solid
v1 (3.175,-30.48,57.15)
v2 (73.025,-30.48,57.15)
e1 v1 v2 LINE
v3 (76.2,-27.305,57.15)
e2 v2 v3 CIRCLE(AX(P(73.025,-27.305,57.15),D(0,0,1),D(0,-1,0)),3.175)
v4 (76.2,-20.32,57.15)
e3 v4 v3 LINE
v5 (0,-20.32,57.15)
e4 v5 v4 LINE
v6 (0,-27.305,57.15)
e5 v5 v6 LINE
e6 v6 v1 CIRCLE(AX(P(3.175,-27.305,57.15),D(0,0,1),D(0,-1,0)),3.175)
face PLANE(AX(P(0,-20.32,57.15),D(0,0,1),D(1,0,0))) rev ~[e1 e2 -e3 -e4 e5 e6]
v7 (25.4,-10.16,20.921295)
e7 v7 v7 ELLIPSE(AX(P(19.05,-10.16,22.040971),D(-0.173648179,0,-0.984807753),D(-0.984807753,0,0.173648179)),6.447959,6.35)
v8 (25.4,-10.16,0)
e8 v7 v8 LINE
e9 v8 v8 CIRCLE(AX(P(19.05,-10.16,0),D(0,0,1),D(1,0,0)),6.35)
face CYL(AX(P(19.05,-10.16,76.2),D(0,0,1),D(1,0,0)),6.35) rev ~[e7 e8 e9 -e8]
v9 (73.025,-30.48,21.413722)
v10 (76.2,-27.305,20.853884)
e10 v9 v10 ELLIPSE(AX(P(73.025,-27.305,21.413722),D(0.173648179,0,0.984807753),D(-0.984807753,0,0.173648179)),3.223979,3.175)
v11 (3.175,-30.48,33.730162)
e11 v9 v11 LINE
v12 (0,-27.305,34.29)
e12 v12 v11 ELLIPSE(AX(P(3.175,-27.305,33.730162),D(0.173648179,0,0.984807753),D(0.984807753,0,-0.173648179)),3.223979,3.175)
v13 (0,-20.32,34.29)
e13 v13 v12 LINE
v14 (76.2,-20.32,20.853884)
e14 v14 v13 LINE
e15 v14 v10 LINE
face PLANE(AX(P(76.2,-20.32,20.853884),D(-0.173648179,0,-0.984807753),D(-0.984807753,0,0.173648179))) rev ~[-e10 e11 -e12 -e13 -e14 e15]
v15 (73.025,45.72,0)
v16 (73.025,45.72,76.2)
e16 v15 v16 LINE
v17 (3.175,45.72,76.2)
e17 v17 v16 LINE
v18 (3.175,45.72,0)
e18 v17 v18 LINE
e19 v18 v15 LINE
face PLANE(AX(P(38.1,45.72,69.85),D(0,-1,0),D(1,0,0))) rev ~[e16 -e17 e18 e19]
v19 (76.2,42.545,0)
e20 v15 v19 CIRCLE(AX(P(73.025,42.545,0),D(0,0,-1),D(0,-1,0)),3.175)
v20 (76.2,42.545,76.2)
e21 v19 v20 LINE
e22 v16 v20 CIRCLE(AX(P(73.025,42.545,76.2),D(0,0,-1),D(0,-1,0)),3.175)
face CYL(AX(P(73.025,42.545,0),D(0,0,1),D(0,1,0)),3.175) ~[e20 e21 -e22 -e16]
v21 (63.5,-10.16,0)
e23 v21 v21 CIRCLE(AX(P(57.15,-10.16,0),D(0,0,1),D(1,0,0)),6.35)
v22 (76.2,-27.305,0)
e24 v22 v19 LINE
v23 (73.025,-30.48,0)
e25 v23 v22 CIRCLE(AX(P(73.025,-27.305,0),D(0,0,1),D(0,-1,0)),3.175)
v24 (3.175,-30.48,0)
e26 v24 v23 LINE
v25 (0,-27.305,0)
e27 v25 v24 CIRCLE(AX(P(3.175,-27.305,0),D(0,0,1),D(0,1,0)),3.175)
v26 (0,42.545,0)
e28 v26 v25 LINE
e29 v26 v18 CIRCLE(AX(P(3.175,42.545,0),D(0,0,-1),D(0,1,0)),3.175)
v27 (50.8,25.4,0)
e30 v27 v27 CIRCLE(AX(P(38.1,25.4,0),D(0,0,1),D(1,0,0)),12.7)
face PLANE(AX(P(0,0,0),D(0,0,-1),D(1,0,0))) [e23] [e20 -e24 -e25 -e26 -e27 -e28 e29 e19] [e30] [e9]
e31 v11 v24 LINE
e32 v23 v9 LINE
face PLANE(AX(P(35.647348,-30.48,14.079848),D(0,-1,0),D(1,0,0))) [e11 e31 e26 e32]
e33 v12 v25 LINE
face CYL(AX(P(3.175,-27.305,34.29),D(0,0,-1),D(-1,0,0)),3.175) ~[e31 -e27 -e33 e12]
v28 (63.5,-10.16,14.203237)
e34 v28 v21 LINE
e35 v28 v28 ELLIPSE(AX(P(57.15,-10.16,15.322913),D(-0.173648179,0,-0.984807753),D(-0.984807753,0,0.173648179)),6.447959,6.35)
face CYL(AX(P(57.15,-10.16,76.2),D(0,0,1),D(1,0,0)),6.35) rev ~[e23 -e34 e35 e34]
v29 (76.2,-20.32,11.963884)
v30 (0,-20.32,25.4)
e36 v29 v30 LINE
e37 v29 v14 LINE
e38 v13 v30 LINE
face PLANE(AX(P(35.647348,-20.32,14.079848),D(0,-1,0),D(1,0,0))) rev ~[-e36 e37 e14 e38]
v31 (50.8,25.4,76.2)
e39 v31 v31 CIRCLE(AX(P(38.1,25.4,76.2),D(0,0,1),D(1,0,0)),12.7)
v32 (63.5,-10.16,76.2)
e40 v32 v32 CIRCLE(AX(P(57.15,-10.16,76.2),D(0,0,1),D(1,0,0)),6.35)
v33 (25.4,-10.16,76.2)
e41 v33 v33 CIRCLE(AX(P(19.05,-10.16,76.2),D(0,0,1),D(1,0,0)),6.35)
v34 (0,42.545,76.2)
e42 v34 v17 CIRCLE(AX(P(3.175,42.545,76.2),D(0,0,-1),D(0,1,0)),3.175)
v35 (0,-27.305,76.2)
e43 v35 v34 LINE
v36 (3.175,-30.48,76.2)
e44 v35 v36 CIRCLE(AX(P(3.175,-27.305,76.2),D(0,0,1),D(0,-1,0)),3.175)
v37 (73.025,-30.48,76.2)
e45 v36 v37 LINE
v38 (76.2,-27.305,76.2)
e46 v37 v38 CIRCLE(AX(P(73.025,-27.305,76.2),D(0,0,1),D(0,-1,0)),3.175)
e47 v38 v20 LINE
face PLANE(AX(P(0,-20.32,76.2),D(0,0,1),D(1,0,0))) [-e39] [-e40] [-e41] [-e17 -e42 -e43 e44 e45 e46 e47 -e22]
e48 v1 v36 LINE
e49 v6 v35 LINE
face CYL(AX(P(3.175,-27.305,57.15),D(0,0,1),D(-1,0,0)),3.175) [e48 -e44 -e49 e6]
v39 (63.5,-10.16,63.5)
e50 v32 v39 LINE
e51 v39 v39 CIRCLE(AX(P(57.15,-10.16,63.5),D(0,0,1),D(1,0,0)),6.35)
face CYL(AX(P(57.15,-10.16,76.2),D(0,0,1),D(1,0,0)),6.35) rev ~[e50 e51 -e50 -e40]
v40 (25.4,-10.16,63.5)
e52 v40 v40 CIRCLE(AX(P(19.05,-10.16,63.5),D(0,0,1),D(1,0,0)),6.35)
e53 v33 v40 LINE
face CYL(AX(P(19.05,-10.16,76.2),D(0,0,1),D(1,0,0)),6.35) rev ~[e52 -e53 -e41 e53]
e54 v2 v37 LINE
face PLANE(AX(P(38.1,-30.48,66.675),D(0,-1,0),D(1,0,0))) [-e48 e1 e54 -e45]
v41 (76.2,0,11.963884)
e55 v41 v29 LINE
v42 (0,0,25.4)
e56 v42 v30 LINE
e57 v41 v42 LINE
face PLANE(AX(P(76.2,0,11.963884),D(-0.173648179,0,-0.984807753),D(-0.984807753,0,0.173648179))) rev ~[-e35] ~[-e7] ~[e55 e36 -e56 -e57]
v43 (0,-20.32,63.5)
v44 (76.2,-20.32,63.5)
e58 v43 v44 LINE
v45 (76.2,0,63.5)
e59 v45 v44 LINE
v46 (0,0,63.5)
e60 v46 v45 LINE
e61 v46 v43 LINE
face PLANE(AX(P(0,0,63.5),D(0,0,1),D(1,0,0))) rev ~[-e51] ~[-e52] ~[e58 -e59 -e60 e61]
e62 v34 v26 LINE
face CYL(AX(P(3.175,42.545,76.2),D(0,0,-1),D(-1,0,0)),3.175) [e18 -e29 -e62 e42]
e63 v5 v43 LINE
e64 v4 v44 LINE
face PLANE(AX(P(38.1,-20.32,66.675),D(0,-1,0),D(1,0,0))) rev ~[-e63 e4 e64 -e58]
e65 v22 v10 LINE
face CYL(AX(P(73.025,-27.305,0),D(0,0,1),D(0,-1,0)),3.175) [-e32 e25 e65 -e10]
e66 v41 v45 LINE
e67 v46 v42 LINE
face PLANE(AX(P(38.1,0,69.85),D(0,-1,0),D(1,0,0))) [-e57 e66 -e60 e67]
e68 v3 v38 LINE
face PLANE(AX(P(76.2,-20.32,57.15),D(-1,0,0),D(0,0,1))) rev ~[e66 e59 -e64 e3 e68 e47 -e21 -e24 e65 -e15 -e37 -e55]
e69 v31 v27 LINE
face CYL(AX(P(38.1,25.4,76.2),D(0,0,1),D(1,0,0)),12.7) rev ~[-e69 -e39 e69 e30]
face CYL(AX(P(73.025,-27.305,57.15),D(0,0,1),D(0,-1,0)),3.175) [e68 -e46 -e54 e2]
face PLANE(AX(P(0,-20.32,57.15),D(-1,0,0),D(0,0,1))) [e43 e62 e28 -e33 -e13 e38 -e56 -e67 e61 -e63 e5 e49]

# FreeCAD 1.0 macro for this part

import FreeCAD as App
import Part
import Sketcher
Q = App.Units.Quantity


def edges_at(feature, points):
    """Names of the edges that pass closest to the given points."""
    edges = feature.Shape.Edges
    near = lambda p: min(range(len(edges)), key=lambda i: edges[i].distToShape(Part.Vertex(*p))[0])
    return sorted({f"Edge{near(p) + 1}" for p in points})


def add_polygon(sketch, points):
    """Adds a closed chain of lines whose ends are joined by coincident constraints."""
    first, n = sketch.GeometryCount, len(points)
    for a, b in zip(points, points[1:] + points[:1]):
        sketch.addGeometry(Part.LineSegment(App.Vector(*a, 0), App.Vector(*b, 0)), False)
    for i in range(n):
        sketch.addConstraint(Sketcher.Constraint("Coincident", first + i, 2, first + (i + 1) % n, 1))

doc = App.newDocument("Part")
body = doc.addObject("PartDesign::Body", "Body")

# Sketch on XZ plane
sketch1 = doc.addObject("Sketcher::SketchObject", "Sketch")
body.addObject(sketch1)
sketch1.AttachmentSupport = (doc.XZ_Plane, [""])
sketch1.MapMode = "FlatFace"
add_polygon(sketch1, [(0, 76), (0, 0), (76, 0), (76, 76)])  # lines 0-3
sketch1.addConstraint(Sketcher.Constraint("Vertical", 0))
sketch1.addConstraint(Sketcher.Constraint("Horizontal", 1))
sketch1.addConstraint(Sketcher.Constraint("Vertical", 2))
sketch1.addConstraint(Sketcher.Constraint("Horizontal", 3))
sketch1.addConstraint(Sketcher.Constraint("Coincident", 0, 2, -1, 1))
sketch1.addConstraint(Sketcher.Constraint("Equal", 3, 0))
sketch1.addConstraint(Sketcher.Constraint("DistanceX", 1, 1, 1, 2, Q("3 in")))
pad1 = doc.addObject("PartDesign::Pad", "Pad")
body.addObject(pad1)
pad1.Profile = sketch1
pad1.Length = Q("1.8 in")
pad1.Reversed = True

# Sketch on XZ plane
sketch2 = doc.addObject("Sketcher::SketchObject", "Sketch001")
body.addObject(sketch2)
sketch2.AttachmentSupport = (doc.XZ_Plane, [""])
sketch2.MapMode = "FlatFace"
add_polygon(sketch2, [(0, 76), (0, 64), (76, 64), (76, 76)])  # lines 0-3
add_polygon(sketch2, [(0, 25), (0, 0), (76, 0), (76, 12)])  # lines 4-7
sketch2.addConstraint(Sketcher.Constraint("Vertical", 0))
sketch2.addConstraint(Sketcher.Constraint("Horizontal", 1))
sketch2.addConstraint(Sketcher.Constraint("Vertical", 2))
sketch2.addConstraint(Sketcher.Constraint("Horizontal", 3))
sketch2.addConstraint(Sketcher.Constraint("Vertical", 4))
sketch2.addConstraint(Sketcher.Constraint("Horizontal", 5))
sketch2.addConstraint(Sketcher.Constraint("Vertical", 6))
sketch2.addConstraint(Sketcher.Constraint("Coincident", 4, 2, -1, 1))
sketch2.addConstraint(Sketcher.Constraint("PointOnObject", 0, 2, -2))
sketch2.addConstraint(Sketcher.Constraint("Vertical", 2, 2, 5, 2))
sketch2.addConstraint(Sketcher.Constraint("DistanceX", 1, 1, 1, 2, Q("3 in")))
sketch2.addConstraint(Sketcher.Constraint("DistanceY", 4, 2, 4, 1, Q("1 in")))
sketch2.addConstraint(Sketcher.Constraint("DistanceY", 0, 2, 0, 1, Q("0.5 in")))
sketch2.addConstraint(Sketcher.Constraint("DistanceY", -1, 1, 2, 2, Q("3 in")))
sketch2.addConstraint(Sketcher.Constraint("Angle", 7, Q("170 deg")))
pad2 = doc.addObject("PartDesign::Pad", "Pad001")
body.addObject(pad2)
pad2.Profile = sketch2
pad2.Length = Q("0.8 in")

# Sketch on XZ plane
sketch3 = doc.addObject("Sketcher::SketchObject", "Sketch002")
body.addObject(sketch3)
sketch3.AttachmentSupport = (doc.XZ_Plane, [""])
sketch3.MapMode = "FlatFace"
sketch3.AttachmentOffset = App.Placement(App.Vector(0, 0, 0.8 * 25.4), App.Rotation())
add_polygon(sketch3, [(0, 76), (0, 57), (76, 57), (76, 76)])  # lines 0-3
add_polygon(sketch3, [(76, 21), (0, 34), (0, 0), (76, 0)])  # lines 4-7
sketch3.addConstraint(Sketcher.Constraint("Vertical", 0))
sketch3.addConstraint(Sketcher.Constraint("Horizontal", 1))
sketch3.addConstraint(Sketcher.Constraint("Vertical", 2))
sketch3.addConstraint(Sketcher.Constraint("Horizontal", 3))
sketch3.addConstraint(Sketcher.Constraint("Vertical", 5))
sketch3.addConstraint(Sketcher.Constraint("Horizontal", 6))
sketch3.addConstraint(Sketcher.Constraint("Vertical", 7))
sketch3.addConstraint(Sketcher.Constraint("Coincident", 5, 2, -1, 1))
sketch3.addConstraint(Sketcher.Constraint("PointOnObject", 0, 2, -2))
sketch3.addConstraint(Sketcher.Constraint("Vertical", 2, 2, 6, 2))
sketch3.addConstraint(Sketcher.Constraint("DistanceX", 1, 1, 1, 2, Q("3 in")))
sketch3.addConstraint(Sketcher.Constraint("DistanceY", -1, 1, 2, 2, Q("3 in")))
sketch3.addConstraint(Sketcher.Constraint("Angle", 4, Q("170 deg")))
sketch3.addConstraint(Sketcher.Constraint("DistanceY", 0, 2, 0, 1, Q("0.75 in")))
sketch3.addConstraint(Sketcher.Constraint("DistanceY", 5, 2, 5, 1, Q("1.35 in")))
pad3 = doc.addObject("PartDesign::Pad", "Pad002")
body.addObject(pad3)
pad3.Profile = sketch3
pad3.Length = Q("0.4 in")

# Sketch on XY plane
sketch4 = doc.addObject("Sketcher::SketchObject", "Sketch003")
body.addObject(sketch4)
sketch4.AttachmentSupport = (doc.XY_Plane, [""])
sketch4.MapMode = "FlatFace"
sketch4.AttachmentOffset = App.Placement(App.Vector(0, 0, 3 * 25.4), App.Rotation())
sketch4.addGeometry(Part.Circle(App.Vector(19, -10, 0), App.Vector(0, 0, 1), 6), False)
sketch4.addGeometry(Part.Circle(App.Vector(57, -10, 0), App.Vector(0, 0, 1), 6), False)
sketch4.addGeometry(Part.Circle(App.Vector(38, 25, 0), App.Vector(0, 0, 1), 13), False)
sketch4.addConstraint(Sketcher.Constraint("Equal", 0, 1))
sketch4.addConstraint(Sketcher.Constraint("Horizontal", 0, 3, 1, 3))
sketch4.addConstraint(Sketcher.Constraint("Diameter", 2, Q("1 in")))
sketch4.addConstraint(Sketcher.Constraint("Diameter", 0, Q("0.5 in")))
sketch4.addConstraint(Sketcher.Constraint("DistanceY", -1, 1, 2, 3, Q("1 in")))
sketch4.addConstraint(Sketcher.Constraint("DistanceY", 0, 3, -1, 1, Q("0.4 in")))
sketch4.addConstraint(Sketcher.Constraint("DistanceX", -1, 1, 2, 3, Q("1.5 in")))
sketch4.addConstraint(Sketcher.Constraint("DistanceX", 0, 3, 1, 3, Q("1.5 in")))
sketch4.addConstraint(Sketcher.Constraint("DistanceX", -1, 1, 0, 3, Q("0.75 in")))
pocket1 = doc.addObject("PartDesign::Pocket", "Pocket")
body.addObject(pocket1)
pocket1.Profile = sketch4
pocket1.Type = "ThroughAll"
doc.recompute()

fillet = doc.addObject("PartDesign::Fillet", "Fillet")
body.addObject(fillet)
fillet.Base = (pocket1, edges_at(pocket1, [
    (76.2, -30.48, 10.427),
    (0, -30.48, 17.145),
    (76.2, 45.72, 38.1),
    (0, 45.72, 38.1),
    (76.2, -30.48, 66.675),
    (0, -30.48, 66.675),
]))
fillet.Radius = Q("0.125 in")

doc.recompute()
